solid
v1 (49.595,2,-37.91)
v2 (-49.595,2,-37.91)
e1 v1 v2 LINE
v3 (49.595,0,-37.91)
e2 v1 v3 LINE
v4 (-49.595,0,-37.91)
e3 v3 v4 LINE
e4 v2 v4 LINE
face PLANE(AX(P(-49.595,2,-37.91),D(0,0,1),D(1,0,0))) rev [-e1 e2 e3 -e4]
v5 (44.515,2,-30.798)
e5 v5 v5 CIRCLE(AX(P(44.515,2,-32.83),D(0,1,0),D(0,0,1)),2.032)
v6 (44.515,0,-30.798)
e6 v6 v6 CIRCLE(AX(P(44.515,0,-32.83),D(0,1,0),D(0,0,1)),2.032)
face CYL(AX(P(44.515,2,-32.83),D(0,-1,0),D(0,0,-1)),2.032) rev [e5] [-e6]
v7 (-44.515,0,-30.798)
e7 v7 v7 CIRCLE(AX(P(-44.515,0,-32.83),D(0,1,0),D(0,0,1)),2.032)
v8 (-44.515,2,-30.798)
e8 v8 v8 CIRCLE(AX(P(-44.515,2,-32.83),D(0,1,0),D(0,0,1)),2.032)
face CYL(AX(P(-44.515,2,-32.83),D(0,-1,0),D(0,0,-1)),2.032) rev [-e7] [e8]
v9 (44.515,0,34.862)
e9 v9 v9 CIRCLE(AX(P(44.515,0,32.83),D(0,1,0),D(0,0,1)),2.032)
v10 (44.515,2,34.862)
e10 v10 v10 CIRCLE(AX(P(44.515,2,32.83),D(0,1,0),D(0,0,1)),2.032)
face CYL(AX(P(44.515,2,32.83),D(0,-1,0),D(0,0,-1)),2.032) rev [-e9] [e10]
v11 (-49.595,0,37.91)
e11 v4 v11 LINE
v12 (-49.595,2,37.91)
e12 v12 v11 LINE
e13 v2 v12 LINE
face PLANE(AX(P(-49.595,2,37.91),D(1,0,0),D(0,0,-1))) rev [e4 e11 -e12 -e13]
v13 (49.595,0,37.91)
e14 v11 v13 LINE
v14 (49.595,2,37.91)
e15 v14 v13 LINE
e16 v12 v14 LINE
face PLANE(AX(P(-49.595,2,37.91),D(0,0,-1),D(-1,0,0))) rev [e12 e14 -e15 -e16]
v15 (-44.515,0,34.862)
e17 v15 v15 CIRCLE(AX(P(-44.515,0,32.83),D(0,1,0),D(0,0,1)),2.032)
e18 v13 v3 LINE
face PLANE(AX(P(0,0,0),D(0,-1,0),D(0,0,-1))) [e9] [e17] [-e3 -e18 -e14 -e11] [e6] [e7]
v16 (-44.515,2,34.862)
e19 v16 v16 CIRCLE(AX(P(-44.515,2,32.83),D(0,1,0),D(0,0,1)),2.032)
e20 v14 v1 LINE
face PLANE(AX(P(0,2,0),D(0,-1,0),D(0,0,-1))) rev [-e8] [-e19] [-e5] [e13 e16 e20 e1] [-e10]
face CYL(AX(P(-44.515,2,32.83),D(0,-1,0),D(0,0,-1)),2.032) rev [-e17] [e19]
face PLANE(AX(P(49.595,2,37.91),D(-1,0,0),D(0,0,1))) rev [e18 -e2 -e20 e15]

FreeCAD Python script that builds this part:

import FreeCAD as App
import Part
import Sketcher
from FreeCAD import Vector


def add_polygon(sketch, points):
    """Adds a closed chain of lines whose ends are joined by coincident constraints."""
    first, n = sketch.GeometryCount, len(points)
    for a, b in zip(points, points[1:] + points[:1]):
        sketch.addGeometry(Part.LineSegment(App.Vector(*a, 0), App.Vector(*b, 0)), False)
    for i in range(n):
        sketch.addConstraint(Sketcher.Constraint("Coincident", first + i, 2, first + (i + 1) % n, 1))

doc = App.newDocument("Part")
body = doc.addObject("PartDesign::Body", "Body")

# Sketch on XZ plane
sketch1 = doc.addObject("Sketcher::SketchObject", "Sketch")
body.addObject(sketch1)
sketch1.AttachmentSupport = (doc.XZ_Plane, [""])
sketch1.MapMode = "FlatFace"
add_polygon(sketch1, [(-49.6, -37.9), (-49.6, 37.9), (49.6, 37.9), (49.6, -37.9)])  # lines 0-3
sketch1.addGeometry(Part.Circle(Vector(-44.5, 32.8, 0), Vector(0, 0, 1), 2), False)  # 4
sketch1.addGeometry(Part.Circle(Vector(44.5, 32.8, 0), Vector(0, 0, 1), 2), False)  # 5
sketch1.addGeometry(Part.Circle(Vector(-44.5, -32.8, 0), Vector(0, 0, 1), 2), False)  # 6
sketch1.addGeometry(Part.Circle(Vector(44.5, -32.8, 0), Vector(0, 0, 1), 2), False)  # 7
sketch1.addConstraint([
    Sketcher.Constraint("Vertical", 0),
    Sketcher.Constraint("Horizontal", 1),
    Sketcher.Constraint("Vertical", 2),
    Sketcher.Constraint("Horizontal", 3),
    Sketcher.Constraint("Equal", 4, 5),
    Sketcher.Constraint("Equal", 5, 6),
    Sketcher.Constraint("Equal", 6, 7),
    Sketcher.Constraint("Symmetric", 5, 3, 6, 3, -1, 1),
    Sketcher.Constraint("Symmetric", 4, 3, 7, 3, -1, 1),
    Sketcher.Constraint("Symmetric", 0, 2, 2, 2, -1, 1),
    Sketcher.Constraint("Symmetric", 4, 3, 5, 3, -2),
    Sketcher.Constraint("Diameter", 4, 4.064),
    Sketcher.Constraint("DistanceX", 1, 1, 1, 2, 99.19),
    Sketcher.Constraint("DistanceY", 0, 1, 0, 2, 75.82),
    Sketcher.Constraint("DistanceY", -1, 1, 4, 3, 32.83),
    Sketcher.Constraint("DistanceX", 4, 3, 5, 3, 89.03),
])
pad1 = doc.addObject("PartDesign::Pad", "Pad")
body.addObject(pad1)
pad1.Profile = sketch1
pad1.Length = 2
pad1.Reversed = True

doc.recompute()
